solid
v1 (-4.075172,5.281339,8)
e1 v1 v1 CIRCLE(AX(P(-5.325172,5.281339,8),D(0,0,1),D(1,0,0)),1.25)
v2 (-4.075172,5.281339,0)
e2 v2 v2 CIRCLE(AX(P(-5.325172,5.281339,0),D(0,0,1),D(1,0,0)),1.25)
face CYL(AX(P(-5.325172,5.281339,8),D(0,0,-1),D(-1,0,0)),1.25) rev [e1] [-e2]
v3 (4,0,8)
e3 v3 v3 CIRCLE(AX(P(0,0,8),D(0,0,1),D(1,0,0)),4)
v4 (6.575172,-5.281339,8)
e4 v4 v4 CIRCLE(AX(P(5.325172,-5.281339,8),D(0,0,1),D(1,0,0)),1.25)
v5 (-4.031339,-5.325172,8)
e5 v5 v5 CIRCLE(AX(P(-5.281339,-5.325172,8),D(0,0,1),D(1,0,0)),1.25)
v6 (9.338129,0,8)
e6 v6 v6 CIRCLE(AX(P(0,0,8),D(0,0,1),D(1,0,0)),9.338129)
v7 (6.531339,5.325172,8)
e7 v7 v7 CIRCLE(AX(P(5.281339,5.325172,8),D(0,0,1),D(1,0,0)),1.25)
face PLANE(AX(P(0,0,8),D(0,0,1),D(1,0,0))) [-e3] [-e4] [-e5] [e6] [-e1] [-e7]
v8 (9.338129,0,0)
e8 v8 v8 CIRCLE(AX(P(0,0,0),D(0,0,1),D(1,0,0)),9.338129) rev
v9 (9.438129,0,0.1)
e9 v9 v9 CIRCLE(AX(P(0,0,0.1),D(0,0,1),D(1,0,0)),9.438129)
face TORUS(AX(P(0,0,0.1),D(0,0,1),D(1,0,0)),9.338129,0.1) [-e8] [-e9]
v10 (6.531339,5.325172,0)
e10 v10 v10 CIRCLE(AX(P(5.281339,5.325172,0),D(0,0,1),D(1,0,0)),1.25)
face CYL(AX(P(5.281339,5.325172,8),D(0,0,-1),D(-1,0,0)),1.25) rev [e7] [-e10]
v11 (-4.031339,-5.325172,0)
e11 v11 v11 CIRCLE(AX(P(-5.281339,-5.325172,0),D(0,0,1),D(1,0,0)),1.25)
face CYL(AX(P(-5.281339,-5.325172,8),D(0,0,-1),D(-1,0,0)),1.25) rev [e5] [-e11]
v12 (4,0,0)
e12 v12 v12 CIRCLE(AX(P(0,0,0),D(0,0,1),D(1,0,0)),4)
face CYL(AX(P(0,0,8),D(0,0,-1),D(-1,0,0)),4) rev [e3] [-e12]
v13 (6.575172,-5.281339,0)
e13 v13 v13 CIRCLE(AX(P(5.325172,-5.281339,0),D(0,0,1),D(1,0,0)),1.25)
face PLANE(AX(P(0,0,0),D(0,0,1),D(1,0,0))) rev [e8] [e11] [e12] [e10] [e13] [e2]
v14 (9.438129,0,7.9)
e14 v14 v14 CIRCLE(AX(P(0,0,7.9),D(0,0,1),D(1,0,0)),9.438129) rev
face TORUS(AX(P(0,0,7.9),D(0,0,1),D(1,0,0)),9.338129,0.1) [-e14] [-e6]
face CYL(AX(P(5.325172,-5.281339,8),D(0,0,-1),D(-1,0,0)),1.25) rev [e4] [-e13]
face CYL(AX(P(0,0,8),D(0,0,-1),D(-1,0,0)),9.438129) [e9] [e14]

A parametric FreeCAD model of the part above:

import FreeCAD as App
import Part
import Sketcher

V = App.Vector
Q = App.Units.Quantity


def edges_at(feature, points):
    """Names of the edges that pass closest to the given points."""
    edges = feature.Shape.Edges
    near = lambda p: min(range(len(edges)), key=lambda i: edges[i].distToShape(Part.Vertex(*p))[0])
    return sorted({f"Edge{near(p) + 1}" for p in points})

doc = App.newDocument("Part")
params = doc.addObject("Spreadsheet::Sheet", "Params")
for row, (alias, value) in enumerate([
    ("sketch1_diameter", "8 mm"),
    ("sketch1_diameter2", "2.5 mm"),
    ("pad1_length", "8 mm"),
    ("fillet_radius", "0.1 mm"),
], start=1):
    params.set(f"A{row}", alias)
    params.set(f"B{row}", "=" + value)
    params.setAlias(f"B{row}", alias)

body = doc.addObject("PartDesign::Body", "Body")

# Sketch on XY plane
sketch1 = body.newObject("Sketcher::SketchObject", "Sketch")
sketch1.AttachmentSupport = (doc.getObject("XY_Plane"), [""])
sketch1.MapMode = "FlatFace"
sketch1.addGeometry(Part.Circle(V(0, 0, 0), V(0, 0, 1), 9.4), False)
sketch1.addGeometry(Part.Circle(V(-5.3, -5.3, 0), V(0, 0, 1), 1.2), False)
sketch1.addGeometry(Part.Circle(V(5.3, -5.3, 0), V(0, 0, 1), 1.2), False)
sketch1.addGeometry(Part.Circle(V(-5.3, 5.3, 0), V(0, 0, 1), 1.2), False)
sketch1.addGeometry(Part.Circle(V(0, 0, 0), V(0, 0, 1), 4), False)
sketch1.addGeometry(Part.Circle(V(5.3, 5.3, 0), V(0, 0, 1), 1.2), False)
sketch1.addConstraint(Sketcher.Constraint("Coincident", 0, 3, -1, 1))
sketch1.addConstraint(Sketcher.Constraint("Coincident", 4, 3, -1, 1))
sketch1.addConstraint(Sketcher.Constraint("Equal", 1, 2))
sketch1.addConstraint(Sketcher.Constraint("Equal", 2, 3))
sketch1.addConstraint(Sketcher.Constraint("Equal", 3, 5))
sketch1.addConstraint(Sketcher.Constraint("Symmetric", 2, 3, 3, 3, -1, 1))
sketch1.addConstraint(Sketcher.Constraint("Symmetric", 1, 3, 5, 3, -1, 1))
sketch1.addConstraint(Sketcher.Constraint("Diameter", 4, Q("8 mm")))
sketch1.addConstraint(Sketcher.Constraint("Diameter", 1, Q("2.5 mm")))
sketch1.addConstraint(Sketcher.Constraint("Diameter", 0, Q("18.876257 mm")))
sketch1.addConstraint(Sketcher.Constraint("DistanceX", 1, 3, -1, 1, Q("5.281339 mm")))
sketch1.addConstraint(Sketcher.Constraint("DistanceY", 1, 3, -1, 1, Q("5.325172 mm")))
sketch1.addConstraint(Sketcher.Constraint("DistanceX", -1, 1, 2, 3, Q("5.325172 mm")))
sketch1.addConstraint(Sketcher.Constraint("DistanceY", 2, 3, -1, 1, Q("5.281339 mm")))
sketch1.setExpression("Constraints[7]", "Params.sketch1_diameter")
sketch1.setExpression("Constraints[8]", "Params.sketch1_diameter2")
pad1 = body.newObject("PartDesign::Pad", "Pad")
pad1.Profile = sketch1
pad1.setExpression("Length", "Params.pad1_length")
doc.recompute()

fillet = body.newObject("PartDesign::Fillet", "Fillet")
fillet.Base = (pad1, edges_at(pad1, [(-9.438, 0, 0), (-9.438, 0, 8)]))
fillet.setExpression("Radius", "Params.fillet_radius")

doc.recompute()
